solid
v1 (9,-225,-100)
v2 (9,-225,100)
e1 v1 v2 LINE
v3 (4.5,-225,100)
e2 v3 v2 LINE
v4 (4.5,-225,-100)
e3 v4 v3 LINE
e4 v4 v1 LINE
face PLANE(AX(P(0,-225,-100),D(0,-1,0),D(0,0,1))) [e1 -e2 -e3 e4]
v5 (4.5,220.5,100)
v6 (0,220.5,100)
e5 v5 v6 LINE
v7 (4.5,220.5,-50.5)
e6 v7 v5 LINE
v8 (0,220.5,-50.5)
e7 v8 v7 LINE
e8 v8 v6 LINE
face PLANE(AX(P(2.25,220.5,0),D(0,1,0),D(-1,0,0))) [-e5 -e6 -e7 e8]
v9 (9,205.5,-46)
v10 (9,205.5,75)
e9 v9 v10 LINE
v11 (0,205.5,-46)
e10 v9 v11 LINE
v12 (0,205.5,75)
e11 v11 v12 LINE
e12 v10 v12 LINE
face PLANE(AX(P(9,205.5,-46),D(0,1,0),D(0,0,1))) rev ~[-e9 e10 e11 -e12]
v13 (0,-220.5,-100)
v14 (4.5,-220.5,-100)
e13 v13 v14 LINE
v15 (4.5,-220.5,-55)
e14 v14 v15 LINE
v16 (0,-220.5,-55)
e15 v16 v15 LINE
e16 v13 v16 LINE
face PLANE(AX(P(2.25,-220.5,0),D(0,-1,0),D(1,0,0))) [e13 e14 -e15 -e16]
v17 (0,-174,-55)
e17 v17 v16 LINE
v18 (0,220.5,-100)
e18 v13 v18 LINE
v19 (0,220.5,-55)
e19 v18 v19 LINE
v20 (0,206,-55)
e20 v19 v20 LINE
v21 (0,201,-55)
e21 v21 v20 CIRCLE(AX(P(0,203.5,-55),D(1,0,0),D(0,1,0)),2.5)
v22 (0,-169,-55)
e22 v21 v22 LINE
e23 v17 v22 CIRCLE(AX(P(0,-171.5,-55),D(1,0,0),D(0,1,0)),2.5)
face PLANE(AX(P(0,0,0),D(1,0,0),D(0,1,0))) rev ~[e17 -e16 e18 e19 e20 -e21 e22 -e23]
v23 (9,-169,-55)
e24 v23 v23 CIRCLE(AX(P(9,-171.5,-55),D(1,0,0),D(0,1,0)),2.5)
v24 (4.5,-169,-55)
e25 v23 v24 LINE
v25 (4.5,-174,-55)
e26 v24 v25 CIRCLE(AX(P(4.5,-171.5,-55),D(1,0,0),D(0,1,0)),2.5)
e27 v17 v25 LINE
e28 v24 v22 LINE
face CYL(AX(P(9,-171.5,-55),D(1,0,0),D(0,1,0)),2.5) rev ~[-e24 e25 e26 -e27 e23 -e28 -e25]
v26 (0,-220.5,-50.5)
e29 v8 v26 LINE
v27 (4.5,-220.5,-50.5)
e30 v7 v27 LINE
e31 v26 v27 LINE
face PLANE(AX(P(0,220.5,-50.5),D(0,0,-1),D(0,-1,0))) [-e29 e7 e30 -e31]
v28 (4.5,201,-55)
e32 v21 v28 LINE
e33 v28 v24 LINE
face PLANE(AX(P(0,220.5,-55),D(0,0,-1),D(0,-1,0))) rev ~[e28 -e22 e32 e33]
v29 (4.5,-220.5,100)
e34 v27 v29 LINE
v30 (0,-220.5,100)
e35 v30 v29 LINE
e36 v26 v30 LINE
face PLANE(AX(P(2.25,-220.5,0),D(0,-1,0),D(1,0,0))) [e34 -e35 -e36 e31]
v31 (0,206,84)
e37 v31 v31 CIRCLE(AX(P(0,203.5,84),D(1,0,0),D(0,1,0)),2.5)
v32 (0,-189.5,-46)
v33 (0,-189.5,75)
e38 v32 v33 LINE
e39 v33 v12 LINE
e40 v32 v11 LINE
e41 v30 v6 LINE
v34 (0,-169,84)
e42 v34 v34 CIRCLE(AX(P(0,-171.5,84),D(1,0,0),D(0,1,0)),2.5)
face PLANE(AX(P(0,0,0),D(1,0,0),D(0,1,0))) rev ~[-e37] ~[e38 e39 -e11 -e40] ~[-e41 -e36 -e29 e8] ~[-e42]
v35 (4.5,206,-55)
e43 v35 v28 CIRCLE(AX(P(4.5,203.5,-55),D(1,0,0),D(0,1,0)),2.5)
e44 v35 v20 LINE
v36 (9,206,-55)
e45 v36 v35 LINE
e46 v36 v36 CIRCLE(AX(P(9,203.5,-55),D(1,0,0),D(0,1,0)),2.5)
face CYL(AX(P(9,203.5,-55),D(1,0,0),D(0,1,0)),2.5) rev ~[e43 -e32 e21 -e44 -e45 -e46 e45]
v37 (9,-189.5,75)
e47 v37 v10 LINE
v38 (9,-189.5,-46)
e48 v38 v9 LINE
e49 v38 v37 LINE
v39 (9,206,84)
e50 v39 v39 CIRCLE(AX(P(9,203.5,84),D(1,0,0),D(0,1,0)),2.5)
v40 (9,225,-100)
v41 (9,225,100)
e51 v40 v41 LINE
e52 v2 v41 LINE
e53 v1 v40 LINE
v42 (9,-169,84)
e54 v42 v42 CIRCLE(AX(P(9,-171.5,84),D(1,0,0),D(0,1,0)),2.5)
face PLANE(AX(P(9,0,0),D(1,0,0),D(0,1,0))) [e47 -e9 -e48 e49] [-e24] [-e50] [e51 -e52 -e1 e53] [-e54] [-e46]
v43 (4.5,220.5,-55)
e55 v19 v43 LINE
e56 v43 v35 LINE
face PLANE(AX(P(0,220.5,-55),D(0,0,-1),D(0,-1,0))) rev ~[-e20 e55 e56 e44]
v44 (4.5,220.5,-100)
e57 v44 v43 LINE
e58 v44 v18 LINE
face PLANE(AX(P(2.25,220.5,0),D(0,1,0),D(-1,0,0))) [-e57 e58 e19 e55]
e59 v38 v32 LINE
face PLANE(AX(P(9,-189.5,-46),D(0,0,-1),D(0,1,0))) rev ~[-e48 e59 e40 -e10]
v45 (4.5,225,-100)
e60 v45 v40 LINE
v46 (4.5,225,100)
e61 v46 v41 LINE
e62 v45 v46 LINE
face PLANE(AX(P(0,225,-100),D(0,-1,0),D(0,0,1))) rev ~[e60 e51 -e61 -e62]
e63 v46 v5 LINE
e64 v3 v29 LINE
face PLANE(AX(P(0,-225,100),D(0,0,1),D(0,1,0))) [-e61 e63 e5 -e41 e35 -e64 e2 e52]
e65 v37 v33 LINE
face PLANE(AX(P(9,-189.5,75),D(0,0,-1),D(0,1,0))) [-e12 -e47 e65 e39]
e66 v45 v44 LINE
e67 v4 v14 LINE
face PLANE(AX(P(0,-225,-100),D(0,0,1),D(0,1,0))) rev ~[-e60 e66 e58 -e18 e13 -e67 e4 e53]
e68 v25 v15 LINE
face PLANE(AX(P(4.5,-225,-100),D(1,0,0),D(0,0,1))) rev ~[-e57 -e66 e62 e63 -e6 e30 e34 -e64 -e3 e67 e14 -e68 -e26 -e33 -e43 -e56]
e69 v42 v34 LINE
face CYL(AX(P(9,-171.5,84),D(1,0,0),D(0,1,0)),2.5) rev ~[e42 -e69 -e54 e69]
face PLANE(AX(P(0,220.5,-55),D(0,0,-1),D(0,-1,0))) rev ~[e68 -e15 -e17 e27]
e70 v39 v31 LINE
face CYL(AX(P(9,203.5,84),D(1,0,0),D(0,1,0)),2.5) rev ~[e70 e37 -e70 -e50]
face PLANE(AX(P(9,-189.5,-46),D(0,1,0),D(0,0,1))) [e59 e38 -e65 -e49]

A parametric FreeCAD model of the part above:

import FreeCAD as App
import Part
import Sketcher

V = App.Vector
Q = App.Units.Quantity

doc = App.newDocument("Part")
params = doc.addObject("Spreadsheet::Sheet", "Params")
for row, (alias, value) in enumerate([
    ("sketch1_width", "450 mm"),
    ("sketch1_height", "200 mm"),
    ("pad1_length", "9 mm"),
    ("sketch2_height", "200 mm"),
    ("sketch2_width", "4.5 mm"),
    ("pocket1_length", "4.5 mm"),
    ("sketch3_height", "200 mm"),
    ("sketch3_width", "4.5 mm"),
    ("pocket2_length", "4.5 mm"),
    ("sketch4_width", "441 mm"),
    ("sketch4_height", "4.5 mm"),
    ("pocket3_length", "4.5 mm"),
    ("sketch5_width", "395 mm"),
    ("sketch5_height", "121 mm"),
    ("sketch6_diameter", "5 mm"),
], start=1):
    params.set(f"A{row}", alias)
    params.set(f"B{row}", "=" + value)
    params.setAlias(f"B{row}", alias)

body = doc.addObject("PartDesign::Body", "Body")

sketch1 = body.newObject("Sketcher::SketchObject", "Sketch")
sketch1.AttachmentSupport = (doc.getObject("YZ_Plane"), [""])
sketch1.MapMode = "FlatFace"
sketch1.addGeometry([
    Part.LineSegment(V(-225, 100, 0), V(-225, -100, 0)),
    Part.LineSegment(V(-225, -100, 0), V(225, -100, 0)),
    Part.LineSegment(V(225, -100, 0), V(225, 100, 0)),
    Part.LineSegment(V(225, 100, 0), V(-225, 100, 0)),
], False)
sketch1.addConstraint([
    Sketcher.Constraint("Coincident", 0, 2, 1, 1),
    Sketcher.Constraint("Coincident", 1, 2, 2, 1),
    Sketcher.Constraint("Coincident", 2, 2, 3, 1),
    Sketcher.Constraint("Coincident", 3, 2, 0, 1),
    Sketcher.Constraint("Vertical", 0),
    Sketcher.Constraint("Horizontal", 1),
    Sketcher.Constraint("Vertical", 2),
    Sketcher.Constraint("Horizontal", 3),
    Sketcher.Constraint("Symmetric", 0, 2, 2, 2, -1, 1),
    Sketcher.Constraint("DistanceX", 1, 1, 1, 2, Q("450 mm")),
    Sketcher.Constraint("DistanceY", 0, 2, 0, 1, Q("200 mm")),
])
sketch1.setExpression("Constraints[9]", "Params.sketch1_width")
sketch1.setExpression("Constraints[10]", "Params.sketch1_height")
pad1 = body.newObject("PartDesign::Pad", "Pad")
pad1.Profile = sketch1
pad1.setExpression("Length", "Params.pad1_length")

sketch2 = body.newObject("Sketcher::SketchObject", "Sketch001")
sketch2.AttachmentSupport = (doc.getObject("XZ_Plane"), [""])
sketch2.MapMode = "FlatFace"
sketch2.AttachmentOffset = App.Placement(V(0, 0, 225), App.Rotation())
sketch2.addGeometry([
    Part.LineSegment(V(0, 100, 0), V(0, -100, 0)),
    Part.LineSegment(V(0, -100, 0), V(4.5, -100, 0)),
    Part.LineSegment(V(4.5, -100, 0), V(4.5, 100, 0)),
    Part.LineSegment(V(4.5, 100, 0), V(0, 100, 0)),
], False)
sketch2.addConstraint([
    Sketcher.Constraint("Coincident", 0, 2, 1, 1),
    Sketcher.Constraint("Coincident", 1, 2, 2, 1),
    Sketcher.Constraint("Coincident", 2, 2, 3, 1),
    Sketcher.Constraint("Coincident", 3, 2, 0, 1),
    Sketcher.Constraint("Vertical", 0),
    Sketcher.Constraint("Horizontal", 1),
    Sketcher.Constraint("Vertical", 2),
    Sketcher.Constraint("Horizontal", 3),
    Sketcher.Constraint("Symmetric", 0, 2, 3, 2, -1, 1),
    Sketcher.Constraint("DistanceY", 0, 2, 0, 1, Q("200 mm")),
    Sketcher.Constraint("DistanceX", 1, 1, 1, 2, Q("4.5 mm")),
])
sketch2.setExpression("Constraints[9]", "Params.sketch2_height")
sketch2.setExpression("Constraints[10]", "Params.sketch2_width")
pocket1 = body.newObject("PartDesign::Pocket", "Pocket")
pocket1.Profile = sketch2
pocket1.setExpression("Length", "Params.pocket1_length")

sketch3 = body.newObject("Sketcher::SketchObject", "Sketch002")
sketch3.AttachmentSupport = (doc.getObject("XZ_Plane"), [""])
sketch3.MapMode = "FlatFace"
sketch3.AttachmentOffset = App.Placement(V(0, 0, -225), App.Rotation())
sketch3.addGeometry([
    Part.LineSegment(V(4.5, 100, 0), V(4.5, -100, 0)),
    Part.LineSegment(V(4.5, -100, 0), V(0, -100, 0)),
    Part.LineSegment(V(0, -100, 0), V(0, 100, 0)),
    Part.LineSegment(V(0, 100, 0), V(4.5, 100, 0)),
], False)
sketch3.addConstraint([
    Sketcher.Constraint("Coincident", 0, 2, 1, 1),
    Sketcher.Constraint("Coincident", 1, 2, 2, 1),
    Sketcher.Constraint("Coincident", 2, 2, 3, 1),
    Sketcher.Constraint("Coincident", 3, 2, 0, 1),
    Sketcher.Constraint("Vertical", 0),
    Sketcher.Constraint("Horizontal", 1),
    Sketcher.Constraint("Vertical", 2),
    Sketcher.Constraint("Horizontal", 3),
    Sketcher.Constraint("Symmetric", 1, 2, 2, 2, -1, 1),
    Sketcher.Constraint("DistanceY", 0, 2, 0, 1, Q("200 mm")),
    Sketcher.Constraint("DistanceX", 1, 2, 1, 1, Q("4.5 mm")),
])
sketch3.setExpression("Constraints[9]", "Params.sketch3_height")
sketch3.setExpression("Constraints[10]", "Params.sketch3_width")
pocket2 = body.newObject("PartDesign::Pocket", "Pocket001")
pocket2.Profile = sketch3
pocket2.setExpression("Length", "Params.pocket2_length")
pocket2.Reversed = True

sketch4 = body.newObject("Sketcher::SketchObject", "Sketch003")
sketch4.AttachmentSupport = (doc.getObject("YZ_Plane"), [""])
sketch4.MapMode = "FlatFace"
sketch4.addGeometry([
    Part.LineSegment(V(220.5, -50.5, 0), V(220.5, -55, 0)),
    Part.LineSegment(V(220.5, -55, 0), V(-220.5, -55, 0)),
    Part.LineSegment(V(-220.5, -55, 0), V(-220.5, -50.5, 0)),
    Part.LineSegment(V(-220.5, -50.5, 0), V(220.5, -50.5, 0)),
], False)
sketch4.addConstraint([
    Sketcher.Constraint("Coincident", 0, 2, 1, 1),
    Sketcher.Constraint("Coincident", 1, 2, 2, 1),
    Sketcher.Constraint("Coincident", 2, 2, 3, 1),
    Sketcher.Constraint("Coincident", 3, 2, 0, 1),
    Sketcher.Constraint("Vertical", 0),
    Sketcher.Constraint("Horizontal", 1),
    Sketcher.Constraint("Vertical", 2),
    Sketcher.Constraint("Horizontal", 3),
    Sketcher.Constraint("DistanceX", 1, 2, 1, 1, Q("441 mm")),
    Sketcher.Constraint("DistanceY", 0, 2, 0, 1, Q("4.5 mm")),
    Sketcher.Constraint("DistanceY", 0, 2, -1, 1, Q("55 mm")),
    Sketcher.Constraint("DistanceX", -1, 1, 0, 2, Q("220.5 mm")),
])
sketch4.setExpression("Constraints[8]", "Params.sketch4_width")
sketch4.setExpression("Constraints[9]", "Params.sketch4_height")
pocket3 = body.newObject("PartDesign::Pocket", "Pocket002")
pocket3.Profile = sketch4
pocket3.setExpression("Length", "Params.pocket3_length")
pocket3.Reversed = True

sketch5 = body.newObject("Sketcher::SketchObject", "Sketch004")
sketch5.AttachmentSupport = (doc.getObject("YZ_Plane"), [""])
sketch5.MapMode = "FlatFace"
sketch5.AttachmentOffset = App.Placement(V(0, 0, 9), App.Rotation())
sketch5.addGeometry([
    Part.LineSegment(V(-190, 75, 0), V(-190, -46, 0)),
    Part.LineSegment(V(-190, -46, 0), V(206, -46, 0)),
    Part.LineSegment(V(206, -46, 0), V(206, 75, 0)),
    Part.LineSegment(V(206, 75, 0), V(-190, 75, 0)),
], False)
sketch5.addConstraint([
    Sketcher.Constraint("Coincident", 0, 2, 1, 1),
    Sketcher.Constraint("Coincident", 1, 2, 2, 1),
    Sketcher.Constraint("Coincident", 2, 2, 3, 1),
    Sketcher.Constraint("Coincident", 3, 2, 0, 1),
    Sketcher.Constraint("Vertical", 0),
    Sketcher.Constraint("Horizontal", 1),
    Sketcher.Constraint("Vertical", 2),
    Sketcher.Constraint("Horizontal", 3),
    Sketcher.Constraint("DistanceX", 1, 1, 1, 2, Q("395 mm")),
    Sketcher.Constraint("DistanceY", 0, 2, 0, 1, Q("121 mm")),
    Sketcher.Constraint("DistanceY", 0, 2, -1, 1, Q("46 mm")),
    Sketcher.Constraint("DistanceX", 0, 2, -1, 1, Q("189.5 mm")),
])
sketch5.setExpression("Constraints[8]", "Params.sketch5_width")
sketch5.setExpression("Constraints[9]", "Params.sketch5_height")
pocket4 = body.newObject("PartDesign::Pocket", "Pocket003")
pocket4.Profile = sketch5
pocket4.Type = "ThroughAll"

sketch6 = body.newObject("Sketcher::SketchObject", "Sketch005")
sketch6.AttachmentSupport = (doc.getObject("YZ_Plane"), [""])
sketch6.MapMode = "FlatFace"
sketch6.AttachmentOffset = App.Placement(V(0, 0, 9), App.Rotation())
sketch6.addGeometry([
    Part.Circle(V(203.5, 84, 0), V(0, 0, 1), 2.5),
    Part.Circle(V(-171.5, 84, 0), V(0, 0, 1), 2.5),
    Part.Circle(V(-171.5, -55, 0), V(0, 0, 1), 2.5),
    Part.Circle(V(203.5, -55, 0), V(0, 0, 1), 2.5),
], False)
sketch6.addConstraint([
    Sketcher.Constraint("Equal", 0, 1),
    Sketcher.Constraint("Equal", 1, 2),
    Sketcher.Constraint("Equal", 2, 3),
    Sketcher.Constraint("Horizontal", 0, 3, 1, 3),
    Sketcher.Constraint("Horizontal", 2, 3, 3, 3),
    Sketcher.Constraint("Vertical", 1, 3, 2, 3),
    Sketcher.Constraint("Vertical", 0, 3, 3, 3),
    Sketcher.Constraint("Diameter", 0, Q("5 mm")),
    Sketcher.Constraint("DistanceY", -1, 1, 0, 3, Q("84 mm")),
    Sketcher.Constraint("DistanceY", 2, 3, -1, 1, Q("55 mm")),
    Sketcher.Constraint("DistanceX", 1, 3, 0, 3, Q("375 mm")),
    Sketcher.Constraint("DistanceX", -1, 1, 0, 3, Q("203.5 mm")),
])
sketch6.setExpression("Constraints[7]", "Params.sketch6_diameter")
pocket5 = body.newObject("PartDesign::Pocket", "Pocket004")
pocket5.Profile = sketch6
pocket5.Type = "ThroughAll"

doc.recompute()
